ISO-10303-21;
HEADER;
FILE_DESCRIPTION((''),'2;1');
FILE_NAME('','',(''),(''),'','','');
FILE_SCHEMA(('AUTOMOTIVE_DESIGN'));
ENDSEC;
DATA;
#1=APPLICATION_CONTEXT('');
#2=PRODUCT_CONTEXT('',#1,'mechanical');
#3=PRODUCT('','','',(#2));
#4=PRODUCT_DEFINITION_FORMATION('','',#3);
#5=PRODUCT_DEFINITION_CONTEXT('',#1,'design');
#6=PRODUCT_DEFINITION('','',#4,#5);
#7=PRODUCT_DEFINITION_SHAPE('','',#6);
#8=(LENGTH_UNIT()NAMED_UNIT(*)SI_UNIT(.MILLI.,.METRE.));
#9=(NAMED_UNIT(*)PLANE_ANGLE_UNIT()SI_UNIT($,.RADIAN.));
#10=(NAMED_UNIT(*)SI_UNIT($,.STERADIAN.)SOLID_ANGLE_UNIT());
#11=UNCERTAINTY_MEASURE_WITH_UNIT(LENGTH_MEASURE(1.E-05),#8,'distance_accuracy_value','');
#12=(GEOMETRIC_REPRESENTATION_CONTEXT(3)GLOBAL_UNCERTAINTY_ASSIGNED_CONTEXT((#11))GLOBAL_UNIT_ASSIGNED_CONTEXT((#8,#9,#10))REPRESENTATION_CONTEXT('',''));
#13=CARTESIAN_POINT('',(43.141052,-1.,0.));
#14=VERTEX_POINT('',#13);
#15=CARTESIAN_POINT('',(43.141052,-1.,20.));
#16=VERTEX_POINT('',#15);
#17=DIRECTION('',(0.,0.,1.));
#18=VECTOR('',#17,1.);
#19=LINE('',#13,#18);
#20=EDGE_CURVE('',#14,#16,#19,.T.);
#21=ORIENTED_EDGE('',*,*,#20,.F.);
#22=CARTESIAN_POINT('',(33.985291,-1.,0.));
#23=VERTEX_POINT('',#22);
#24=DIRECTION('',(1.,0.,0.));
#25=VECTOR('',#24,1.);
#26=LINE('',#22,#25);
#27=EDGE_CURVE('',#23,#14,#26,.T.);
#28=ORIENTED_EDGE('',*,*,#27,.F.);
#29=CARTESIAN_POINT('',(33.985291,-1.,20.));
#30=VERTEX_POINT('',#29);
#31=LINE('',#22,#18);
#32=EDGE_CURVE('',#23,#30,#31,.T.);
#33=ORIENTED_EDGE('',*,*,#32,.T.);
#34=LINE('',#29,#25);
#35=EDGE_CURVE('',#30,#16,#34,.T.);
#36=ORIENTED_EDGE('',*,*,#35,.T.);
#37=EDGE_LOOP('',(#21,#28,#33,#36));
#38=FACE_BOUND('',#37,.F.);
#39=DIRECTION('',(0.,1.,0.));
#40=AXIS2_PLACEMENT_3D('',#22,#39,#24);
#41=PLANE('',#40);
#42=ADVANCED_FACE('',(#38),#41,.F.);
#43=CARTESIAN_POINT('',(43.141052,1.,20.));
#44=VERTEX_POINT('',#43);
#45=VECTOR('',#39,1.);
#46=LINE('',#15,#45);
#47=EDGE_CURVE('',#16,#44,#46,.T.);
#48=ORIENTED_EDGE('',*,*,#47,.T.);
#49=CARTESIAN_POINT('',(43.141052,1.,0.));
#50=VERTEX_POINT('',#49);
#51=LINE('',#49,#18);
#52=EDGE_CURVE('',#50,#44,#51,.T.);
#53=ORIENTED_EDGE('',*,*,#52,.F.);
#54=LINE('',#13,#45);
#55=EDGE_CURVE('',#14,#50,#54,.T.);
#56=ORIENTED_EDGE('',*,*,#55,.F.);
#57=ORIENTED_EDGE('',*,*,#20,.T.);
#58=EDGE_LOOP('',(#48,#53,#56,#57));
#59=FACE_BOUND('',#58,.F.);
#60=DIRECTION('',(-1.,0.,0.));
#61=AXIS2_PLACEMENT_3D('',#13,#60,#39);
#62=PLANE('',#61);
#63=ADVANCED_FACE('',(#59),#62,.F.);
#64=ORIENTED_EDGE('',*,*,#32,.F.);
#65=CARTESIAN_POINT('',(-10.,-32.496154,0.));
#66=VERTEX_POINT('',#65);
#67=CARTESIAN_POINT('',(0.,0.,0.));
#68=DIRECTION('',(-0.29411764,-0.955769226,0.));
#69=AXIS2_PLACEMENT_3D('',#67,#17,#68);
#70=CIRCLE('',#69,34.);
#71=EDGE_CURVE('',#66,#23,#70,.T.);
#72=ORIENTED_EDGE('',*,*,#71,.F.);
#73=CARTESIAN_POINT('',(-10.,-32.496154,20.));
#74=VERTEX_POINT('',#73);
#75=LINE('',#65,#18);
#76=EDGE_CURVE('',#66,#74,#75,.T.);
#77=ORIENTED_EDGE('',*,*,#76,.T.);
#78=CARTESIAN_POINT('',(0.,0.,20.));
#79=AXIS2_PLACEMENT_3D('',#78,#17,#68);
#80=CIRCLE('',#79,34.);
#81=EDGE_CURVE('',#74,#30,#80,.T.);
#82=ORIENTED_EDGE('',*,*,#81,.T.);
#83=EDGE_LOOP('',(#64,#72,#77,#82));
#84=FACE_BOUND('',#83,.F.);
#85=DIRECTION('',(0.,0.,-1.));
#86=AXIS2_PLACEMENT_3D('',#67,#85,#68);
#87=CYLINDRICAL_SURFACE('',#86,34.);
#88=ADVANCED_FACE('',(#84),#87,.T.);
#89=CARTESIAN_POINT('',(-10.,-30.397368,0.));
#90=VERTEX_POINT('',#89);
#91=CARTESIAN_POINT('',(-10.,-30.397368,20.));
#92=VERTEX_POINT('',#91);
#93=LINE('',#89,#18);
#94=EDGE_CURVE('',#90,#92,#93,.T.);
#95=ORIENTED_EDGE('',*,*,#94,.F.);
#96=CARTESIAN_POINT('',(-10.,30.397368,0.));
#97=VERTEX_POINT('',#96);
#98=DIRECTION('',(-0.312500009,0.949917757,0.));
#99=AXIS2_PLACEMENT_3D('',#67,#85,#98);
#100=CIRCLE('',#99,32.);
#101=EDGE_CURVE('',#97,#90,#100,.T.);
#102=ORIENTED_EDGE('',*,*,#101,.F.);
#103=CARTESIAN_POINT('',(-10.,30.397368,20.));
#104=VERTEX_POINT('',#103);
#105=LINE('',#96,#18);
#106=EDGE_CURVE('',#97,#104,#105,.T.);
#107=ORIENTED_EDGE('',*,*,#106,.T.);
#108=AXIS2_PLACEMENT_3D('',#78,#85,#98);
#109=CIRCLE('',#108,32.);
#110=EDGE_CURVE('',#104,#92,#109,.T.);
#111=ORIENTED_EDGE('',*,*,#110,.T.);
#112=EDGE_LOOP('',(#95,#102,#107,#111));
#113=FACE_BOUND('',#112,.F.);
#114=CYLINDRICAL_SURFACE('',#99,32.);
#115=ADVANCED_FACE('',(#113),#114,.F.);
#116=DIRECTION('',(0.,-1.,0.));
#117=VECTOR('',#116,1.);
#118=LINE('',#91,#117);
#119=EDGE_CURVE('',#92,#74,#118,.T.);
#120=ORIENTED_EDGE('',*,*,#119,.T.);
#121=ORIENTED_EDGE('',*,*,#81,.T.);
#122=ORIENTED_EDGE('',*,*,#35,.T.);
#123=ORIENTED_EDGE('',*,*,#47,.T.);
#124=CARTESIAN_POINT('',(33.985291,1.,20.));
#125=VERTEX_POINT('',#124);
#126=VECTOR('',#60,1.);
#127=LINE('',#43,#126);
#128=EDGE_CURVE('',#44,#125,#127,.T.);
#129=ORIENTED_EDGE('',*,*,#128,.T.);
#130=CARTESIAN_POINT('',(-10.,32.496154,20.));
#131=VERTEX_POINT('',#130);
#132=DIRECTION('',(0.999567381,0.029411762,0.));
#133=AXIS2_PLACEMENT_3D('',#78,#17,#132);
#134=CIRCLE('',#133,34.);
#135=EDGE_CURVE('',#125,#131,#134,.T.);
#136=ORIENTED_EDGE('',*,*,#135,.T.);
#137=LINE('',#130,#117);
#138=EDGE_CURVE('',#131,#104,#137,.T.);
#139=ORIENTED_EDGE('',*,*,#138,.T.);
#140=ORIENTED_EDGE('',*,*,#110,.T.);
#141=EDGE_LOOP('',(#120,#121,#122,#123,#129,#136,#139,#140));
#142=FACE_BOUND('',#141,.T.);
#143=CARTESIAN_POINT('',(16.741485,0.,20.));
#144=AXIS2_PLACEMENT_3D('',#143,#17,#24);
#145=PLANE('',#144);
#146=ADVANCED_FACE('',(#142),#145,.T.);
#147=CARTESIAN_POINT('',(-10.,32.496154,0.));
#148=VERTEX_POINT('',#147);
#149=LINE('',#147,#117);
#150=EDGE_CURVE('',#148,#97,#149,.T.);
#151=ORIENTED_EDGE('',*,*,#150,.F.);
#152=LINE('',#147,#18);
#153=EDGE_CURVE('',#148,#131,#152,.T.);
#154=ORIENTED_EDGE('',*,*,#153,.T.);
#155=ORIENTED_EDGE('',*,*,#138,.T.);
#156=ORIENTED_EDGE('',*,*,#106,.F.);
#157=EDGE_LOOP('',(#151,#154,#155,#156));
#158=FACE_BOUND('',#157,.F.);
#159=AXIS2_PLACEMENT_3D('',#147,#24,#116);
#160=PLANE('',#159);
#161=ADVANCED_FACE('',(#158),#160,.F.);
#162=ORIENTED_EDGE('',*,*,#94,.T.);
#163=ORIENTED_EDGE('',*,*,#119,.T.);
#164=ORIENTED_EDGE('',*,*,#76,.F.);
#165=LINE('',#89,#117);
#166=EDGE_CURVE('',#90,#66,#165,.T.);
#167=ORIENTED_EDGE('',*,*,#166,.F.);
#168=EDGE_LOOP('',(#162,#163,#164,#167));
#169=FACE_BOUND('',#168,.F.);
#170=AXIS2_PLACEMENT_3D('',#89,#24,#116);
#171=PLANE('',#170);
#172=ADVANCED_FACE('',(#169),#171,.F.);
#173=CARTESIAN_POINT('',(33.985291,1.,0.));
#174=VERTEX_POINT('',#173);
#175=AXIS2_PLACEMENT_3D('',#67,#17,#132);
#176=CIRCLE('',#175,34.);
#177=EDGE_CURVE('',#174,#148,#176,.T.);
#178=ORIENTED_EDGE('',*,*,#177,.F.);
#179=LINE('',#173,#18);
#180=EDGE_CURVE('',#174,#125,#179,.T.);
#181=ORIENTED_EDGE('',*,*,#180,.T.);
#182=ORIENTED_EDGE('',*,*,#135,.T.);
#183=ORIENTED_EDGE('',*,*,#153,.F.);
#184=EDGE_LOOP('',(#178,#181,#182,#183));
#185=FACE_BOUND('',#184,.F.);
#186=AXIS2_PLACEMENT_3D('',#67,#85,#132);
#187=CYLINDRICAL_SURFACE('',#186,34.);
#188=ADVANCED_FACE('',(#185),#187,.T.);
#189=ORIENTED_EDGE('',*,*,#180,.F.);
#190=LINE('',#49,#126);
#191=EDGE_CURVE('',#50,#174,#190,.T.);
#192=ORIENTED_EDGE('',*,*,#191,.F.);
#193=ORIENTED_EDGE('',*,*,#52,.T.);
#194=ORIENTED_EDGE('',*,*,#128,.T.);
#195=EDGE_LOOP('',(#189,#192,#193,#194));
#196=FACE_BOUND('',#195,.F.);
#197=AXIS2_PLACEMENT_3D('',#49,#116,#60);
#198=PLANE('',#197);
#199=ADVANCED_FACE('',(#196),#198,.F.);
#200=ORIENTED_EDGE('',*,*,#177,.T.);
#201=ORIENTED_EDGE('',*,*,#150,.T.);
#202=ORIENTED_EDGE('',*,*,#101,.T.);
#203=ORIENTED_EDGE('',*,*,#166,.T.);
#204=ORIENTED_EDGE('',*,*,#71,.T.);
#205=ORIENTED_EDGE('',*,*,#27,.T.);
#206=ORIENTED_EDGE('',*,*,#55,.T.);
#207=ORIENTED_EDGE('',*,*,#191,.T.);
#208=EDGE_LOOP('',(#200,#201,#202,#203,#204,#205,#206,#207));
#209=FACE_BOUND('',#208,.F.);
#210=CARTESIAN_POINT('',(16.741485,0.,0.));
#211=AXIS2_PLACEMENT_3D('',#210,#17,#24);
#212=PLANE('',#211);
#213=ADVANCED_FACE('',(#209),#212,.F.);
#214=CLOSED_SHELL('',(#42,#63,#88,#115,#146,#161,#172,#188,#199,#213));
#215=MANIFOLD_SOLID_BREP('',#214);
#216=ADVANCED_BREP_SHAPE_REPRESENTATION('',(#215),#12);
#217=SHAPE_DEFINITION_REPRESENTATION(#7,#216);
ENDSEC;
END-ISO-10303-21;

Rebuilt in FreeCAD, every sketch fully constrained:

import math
import FreeCAD as App
import Part
import Sketcher

V = App.Vector
Q = App.Units.Quantity

doc = App.newDocument("Part")
params = doc.addObject("Spreadsheet::Sheet", "Params")
for row, (alias, value) in enumerate([
    ("sketch1_radius", "32 mm"),
    ("sketch1_radius2", "34 mm"),
    ("sketch1_height", "2 mm"),
    ("pad1_length", "20 mm"),
], start=1):
    params.set(f"A{row}", alias)
    params.set(f"B{row}", "=" + value)
    params.setAlias(f"B{row}", alias)

body = doc.addObject("PartDesign::Body", "Body")

# Sketch on XY plane
sketch1 = body.newObject("Sketcher::SketchObject", "Sketch")
sketch1.AttachmentSupport = (doc.getObject("XY_Plane"), [""])
sketch1.MapMode = "FlatFace"
sketch1.addGeometry(Part.ArcOfCircle(Part.Circle(V(0, 0, 0), V(0, 0, 1), 32), math.radians(-108), math.radians(108)), False)
sketch1.addGeometry(Part.LineSegment(V(-10, -30.4, 0), V(-10, -32.5, 0)), False)
sketch1.addGeometry(Part.ArcOfCircle(Part.Circle(V(0, 0, 0), V(0, 0, 1), 34), math.radians(-107), math.radians(-2)), False)
sketch1.addGeometry(Part.LineSegment(V(34, -1, 0), V(43.1, -1, 0)), False)
sketch1.addGeometry(Part.LineSegment(V(43.1, -1, 0), V(43.1, 1, 0)), False)
sketch1.addGeometry(Part.LineSegment(V(43.1, 1, 0), V(34, 1, 0)), False)
sketch1.addGeometry(Part.ArcOfCircle(Part.Circle(V(0, 0, 0), V(0, 0, 1), 34), math.radians(2), math.radians(107)), False)
sketch1.addGeometry(Part.LineSegment(V(-10, 32.5, 0), V(-10, 30.4, 0)), False)
sketch1.addConstraint(Sketcher.Constraint("Coincident", 0, 1, 1, 1))
sketch1.addConstraint(Sketcher.Constraint("Coincident", 1, 2, 2, 1))
sketch1.addConstraint(Sketcher.Constraint("Coincident", 2, 2, 3, 1))
sketch1.addConstraint(Sketcher.Constraint("Coincident", 3, 2, 4, 1))
sketch1.addConstraint(Sketcher.Constraint("Coincident", 4, 2, 5, 1))
sketch1.addConstraint(Sketcher.Constraint("Coincident", 5, 2, 6, 1))
sketch1.addConstraint(Sketcher.Constraint("Coincident", 6, 2, 7, 1))
sketch1.addConstraint(Sketcher.Constraint("Coincident", 7, 2, 0, 2))
sketch1.addConstraint(Sketcher.Constraint("Vertical", 1))
sketch1.addConstraint(Sketcher.Constraint("Horizontal", 3))
sketch1.addConstraint(Sketcher.Constraint("Vertical", 4))
sketch1.addConstraint(Sketcher.Constraint("Horizontal", 5))
sketch1.addConstraint(Sketcher.Constraint("Vertical", 7))
sketch1.addConstraint(Sketcher.Constraint("Coincident", 0, 3, -1, 1))
sketch1.addConstraint(Sketcher.Constraint("Coincident", 2, 3, -1, 1))
sketch1.addConstraint(Sketcher.Constraint("Coincident", 6, 3, -1, 1))
sketch1.addConstraint(Sketcher.Constraint("Equal", 2, 6))
sketch1.addConstraint(Sketcher.Constraint("Vertical", 2, 2, 5, 2))
sketch1.addConstraint(Sketcher.Constraint("Vertical", 1, 2, 6, 2))
sketch1.addConstraint(Sketcher.Constraint("Radius", 0, Q("32 mm")))
sketch1.addConstraint(Sketcher.Constraint("Radius", 2, Q("34 mm")))
sketch1.addConstraint(Sketcher.Constraint("DistanceY", 4, 1, 4, 2, Q("2 mm")))
sketch1.addConstraint(Sketcher.Constraint("DistanceX", 0, 1, -1, 1, Q("10 mm")))
sketch1.addConstraint(Sketcher.Constraint("DistanceX", 3, 1, 3, 2, Q("9.155761 mm")))
sketch1.setExpression("Constraints[19]", "Params.sketch1_radius")
sketch1.setExpression("Constraints[20]", "Params.sketch1_radius2")
sketch1.setExpression("Constraints[21]", "Params.sketch1_height")
pad1 = body.newObject("PartDesign::Pad", "Pad")
pad1.Profile = sketch1
pad1.setExpression("Length", "Params.pad1_length")

doc.recompute()
